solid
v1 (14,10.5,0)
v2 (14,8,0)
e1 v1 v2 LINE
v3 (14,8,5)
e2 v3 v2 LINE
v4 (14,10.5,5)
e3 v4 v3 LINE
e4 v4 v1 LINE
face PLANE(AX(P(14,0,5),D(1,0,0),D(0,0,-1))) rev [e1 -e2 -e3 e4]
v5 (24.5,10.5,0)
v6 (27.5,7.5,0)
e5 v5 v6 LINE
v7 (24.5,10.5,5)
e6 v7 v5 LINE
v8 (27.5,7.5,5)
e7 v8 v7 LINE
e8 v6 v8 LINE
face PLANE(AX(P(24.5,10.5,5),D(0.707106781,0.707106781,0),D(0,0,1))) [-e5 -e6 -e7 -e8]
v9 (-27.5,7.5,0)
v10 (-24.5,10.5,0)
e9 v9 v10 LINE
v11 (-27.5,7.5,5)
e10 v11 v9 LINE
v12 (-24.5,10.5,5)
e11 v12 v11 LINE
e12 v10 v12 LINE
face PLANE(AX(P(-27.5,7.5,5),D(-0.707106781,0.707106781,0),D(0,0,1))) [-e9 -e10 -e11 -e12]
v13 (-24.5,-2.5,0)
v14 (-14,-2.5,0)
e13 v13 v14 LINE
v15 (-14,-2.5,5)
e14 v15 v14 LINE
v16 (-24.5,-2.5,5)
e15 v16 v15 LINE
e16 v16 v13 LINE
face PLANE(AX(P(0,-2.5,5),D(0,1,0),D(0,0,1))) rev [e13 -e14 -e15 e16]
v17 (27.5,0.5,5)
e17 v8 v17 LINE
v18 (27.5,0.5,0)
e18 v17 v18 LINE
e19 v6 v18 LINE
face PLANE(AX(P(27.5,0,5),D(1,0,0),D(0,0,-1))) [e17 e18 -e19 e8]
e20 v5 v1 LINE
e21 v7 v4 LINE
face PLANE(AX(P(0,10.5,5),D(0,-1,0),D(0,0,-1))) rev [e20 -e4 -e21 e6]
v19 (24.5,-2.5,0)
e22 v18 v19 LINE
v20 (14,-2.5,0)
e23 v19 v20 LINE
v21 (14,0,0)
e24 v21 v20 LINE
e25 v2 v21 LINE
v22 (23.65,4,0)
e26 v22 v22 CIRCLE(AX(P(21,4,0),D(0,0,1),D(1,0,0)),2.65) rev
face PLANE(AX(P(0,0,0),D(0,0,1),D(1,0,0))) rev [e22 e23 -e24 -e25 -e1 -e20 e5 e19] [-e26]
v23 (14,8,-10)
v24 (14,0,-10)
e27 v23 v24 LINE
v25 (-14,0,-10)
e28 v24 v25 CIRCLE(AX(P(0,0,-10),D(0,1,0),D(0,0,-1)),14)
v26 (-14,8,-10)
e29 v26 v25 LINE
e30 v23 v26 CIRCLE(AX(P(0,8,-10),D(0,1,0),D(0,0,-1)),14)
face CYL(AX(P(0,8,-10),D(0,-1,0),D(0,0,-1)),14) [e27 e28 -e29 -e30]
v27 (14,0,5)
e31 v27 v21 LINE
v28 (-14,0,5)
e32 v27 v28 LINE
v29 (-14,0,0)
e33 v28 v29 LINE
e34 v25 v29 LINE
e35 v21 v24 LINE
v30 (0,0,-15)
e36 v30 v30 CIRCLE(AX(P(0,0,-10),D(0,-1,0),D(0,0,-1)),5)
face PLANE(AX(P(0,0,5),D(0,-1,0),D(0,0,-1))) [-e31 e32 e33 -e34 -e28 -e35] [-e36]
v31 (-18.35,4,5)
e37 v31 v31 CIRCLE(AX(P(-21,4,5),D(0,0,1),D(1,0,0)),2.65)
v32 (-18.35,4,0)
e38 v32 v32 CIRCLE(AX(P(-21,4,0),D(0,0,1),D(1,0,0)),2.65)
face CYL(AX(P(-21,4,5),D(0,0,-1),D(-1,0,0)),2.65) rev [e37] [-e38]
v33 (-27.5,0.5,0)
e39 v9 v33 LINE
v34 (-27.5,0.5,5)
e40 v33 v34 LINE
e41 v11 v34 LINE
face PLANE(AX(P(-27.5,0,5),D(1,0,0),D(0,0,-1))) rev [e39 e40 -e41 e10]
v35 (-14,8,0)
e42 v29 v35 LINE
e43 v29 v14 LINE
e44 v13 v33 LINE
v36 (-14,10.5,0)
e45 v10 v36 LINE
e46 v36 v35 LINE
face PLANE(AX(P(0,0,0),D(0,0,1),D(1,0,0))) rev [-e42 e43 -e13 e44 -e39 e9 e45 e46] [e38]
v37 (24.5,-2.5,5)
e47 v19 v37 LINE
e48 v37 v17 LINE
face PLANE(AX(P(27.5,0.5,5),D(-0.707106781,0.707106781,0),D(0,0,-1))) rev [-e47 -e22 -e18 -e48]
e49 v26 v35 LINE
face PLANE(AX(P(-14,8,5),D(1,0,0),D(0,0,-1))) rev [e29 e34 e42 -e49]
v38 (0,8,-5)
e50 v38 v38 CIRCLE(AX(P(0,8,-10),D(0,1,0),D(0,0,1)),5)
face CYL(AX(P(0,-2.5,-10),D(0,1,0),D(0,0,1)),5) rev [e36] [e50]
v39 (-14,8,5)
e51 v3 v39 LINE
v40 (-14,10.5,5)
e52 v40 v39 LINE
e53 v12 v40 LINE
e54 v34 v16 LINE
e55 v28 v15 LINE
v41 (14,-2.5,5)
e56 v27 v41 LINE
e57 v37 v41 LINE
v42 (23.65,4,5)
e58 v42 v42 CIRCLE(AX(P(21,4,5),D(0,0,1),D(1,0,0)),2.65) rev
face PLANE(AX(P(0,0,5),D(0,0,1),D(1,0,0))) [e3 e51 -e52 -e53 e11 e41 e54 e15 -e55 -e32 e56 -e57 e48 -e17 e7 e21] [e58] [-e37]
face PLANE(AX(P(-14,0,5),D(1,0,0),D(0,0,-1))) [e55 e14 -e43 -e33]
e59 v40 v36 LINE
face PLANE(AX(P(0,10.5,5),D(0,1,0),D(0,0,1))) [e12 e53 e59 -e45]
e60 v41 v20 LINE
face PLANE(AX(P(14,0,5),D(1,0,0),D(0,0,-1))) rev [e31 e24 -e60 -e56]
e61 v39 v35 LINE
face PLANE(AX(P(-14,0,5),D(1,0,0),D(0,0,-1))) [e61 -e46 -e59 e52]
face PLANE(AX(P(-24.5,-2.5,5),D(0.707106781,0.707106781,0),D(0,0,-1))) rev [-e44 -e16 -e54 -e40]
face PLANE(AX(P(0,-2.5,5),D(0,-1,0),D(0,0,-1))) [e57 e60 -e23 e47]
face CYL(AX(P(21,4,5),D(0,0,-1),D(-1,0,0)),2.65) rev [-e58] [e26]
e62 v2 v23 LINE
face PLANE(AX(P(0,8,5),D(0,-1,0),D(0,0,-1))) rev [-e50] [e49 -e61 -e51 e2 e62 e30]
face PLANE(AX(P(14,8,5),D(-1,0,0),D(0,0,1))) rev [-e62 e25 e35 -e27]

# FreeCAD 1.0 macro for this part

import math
import FreeCAD as App
import Part
import Sketcher
from FreeCAD import Vector


def edges_at(feature, points):
    """Names of the edges that pass closest to the given points."""
    edges = feature.Shape.Edges
    near = lambda p: min(range(len(edges)), key=lambda i: edges[i].distToShape(Part.Vertex(*p))[0])
    return sorted({f"Edge{near(p) + 1}" for p in points})


def add_polygon(sketch, points):
    """Adds a closed chain of lines whose ends are joined by coincident constraints."""
    first, n = sketch.GeometryCount, len(points)
    for a, b in zip(points, points[1:] + points[:1]):
        sketch.addGeometry(Part.LineSegment(App.Vector(*a, 0), App.Vector(*b, 0)), False)
    for i in range(n):
        sketch.addConstraint(Sketcher.Constraint("Coincident", first + i, 2, first + (i + 1) % n, 1))

doc = App.newDocument("Part")
params = doc.addObject("Spreadsheet::Sheet", "Params")
for row, (alias, value) in enumerate([
    ("sketch1_diameter", "5.3 mm"),
    ("sketch1_width", "28 mm"),
    ("sketch1_height", "13 mm"),
    ("sketch1_width2", "13.5 mm"),
    ("sketch1_height2", "2.5 mm"),
    ("pad1_length", "5 mm"),
    ("chamfer_size", "3 mm"),
    ("sketch2_radius", "14 mm"),
    ("sketch2_height", "15 mm"),
    ("pad2_length", "8 mm"),
    ("sketch3_diameter", "10 mm"),
], start=1):
    params.set(f"A{row}", alias)
    params.set(f"B{row}", "=" + value)
    params.setAlias(f"B{row}", alias)

body = doc.addObject("PartDesign::Body", "Body")

# Sketch on XY plane
sketch1 = doc.addObject("Sketcher::SketchObject", "Sketch")
body.addObject(sketch1)
sketch1.AttachmentSupport = (doc.XY_Plane, [""])
sketch1.MapMode = "FlatFace"
add_polygon(sketch1, [(-14, -2.5), (-14, 0), (14, 0), (14, -2.5), (27.5, -2.5), (27.5, 10.5), (14, 10.5), (14, 8), (-14, 8), (-14, 10.5), (-27.5, 10.5), (-27.5, -2.5)])  # lines 0-11
sketch1.addGeometry(Part.Circle(Vector(-21, 4, 0), Vector(0, 0, 1), 2.65), False)  # 12
sketch1.addGeometry(Part.Circle(Vector(21, 4, 0), Vector(0, 0, 1), 2.65), False)  # 13
sketch1.addConstraint([
    Sketcher.Constraint("Vertical", 0),
    Sketcher.Constraint("Horizontal", 1),
    Sketcher.Constraint("Vertical", 2),
    Sketcher.Constraint("Horizontal", 3),
    Sketcher.Constraint("Vertical", 4),
    Sketcher.Constraint("Horizontal", 5),
    Sketcher.Constraint("Vertical", 6),
    Sketcher.Constraint("Horizontal", 7),
    Sketcher.Constraint("Vertical", 8),
    Sketcher.Constraint("Horizontal", 9),
    Sketcher.Constraint("Vertical", 10),
    Sketcher.Constraint("Horizontal", 11),
    Sketcher.Constraint("Equal", 12, 13),
    Sketcher.Constraint("Symmetric", 0, 2, 1, 2, -1, 1),
    Sketcher.Constraint("Symmetric", 12, 3, 13, 3, -2),
    Sketcher.Constraint("Symmetric", 5, 2, 8, 2, -2),
    Sketcher.Constraint("Symmetric", 3, 2, 10, 2, -2),
    Sketcher.Constraint("Vertical", 2, 2, 5, 2),
    Sketcher.Constraint("Equal", 2, 6),
    Sketcher.Constraint("Diameter", 12, 5.3),
    Sketcher.Constraint("DistanceX", 1, 1, 1, 2, 28.0),
    Sketcher.Constraint("DistanceY", 4, 1, 4, 2, 13.0),
    Sketcher.Constraint("DistanceX", 3, 1, 3, 2, 13.5),
    Sketcher.Constraint("DistanceY", 0, 1, 0, 2, 2.5),
    Sketcher.Constraint("DistanceX", 12, 3, -1, 1, 21.0),
    Sketcher.Constraint("DistanceY", -1, 1, 12, 3, 4.0),
])
sketch1.setExpression("Constraints[31]", "Params.sketch1_diameter")
sketch1.setExpression("Constraints[32]", "Params.sketch1_width")
sketch1.setExpression("Constraints[33]", "Params.sketch1_height")
sketch1.setExpression("Constraints[34]", "Params.sketch1_width2")
sketch1.setExpression("Constraints[35]", "Params.sketch1_height2")
pad1 = doc.addObject("PartDesign::Pad", "Pad")
body.addObject(pad1)
pad1.Profile = sketch1
pad1.setExpression("Length", "Params.pad1_length")
doc.recompute()

chamfer = doc.addObject("PartDesign::Chamfer", "Chamfer")
body.addObject(chamfer)
chamfer.Base = (pad1, edges_at(pad1, [
    (27.5, 10.5, 2.5),
    (27.5, -2.5, 2.5),
    (-27.5, -2.5, 2.5),
    (-27.5, 10.5, 2.5),
]))
chamfer.setExpression("Size", "Params.chamfer_size")

# Sketch on XZ plane
sketch2 = doc.addObject("Sketcher::SketchObject", "Sketch001")
body.addObject(sketch2)
sketch2.AttachmentSupport = (doc.XZ_Plane, [""])
sketch2.MapMode = "FlatFace"
sketch2.AttachmentOffset = App.Placement(Vector(0, 0, -4), App.Rotation())
sketch2.addGeometry([
    Part.LineSegment(Vector(-14, -10, 0), Vector(-14, 5, 0)),
    Part.LineSegment(Vector(-14, 5, 0), Vector(14, 5, 0)),
    Part.LineSegment(Vector(14, 5, 0), Vector(14, -10, 0)),
    Part.ArcOfCircle(Part.Circle(Vector(0, -10, 0), Vector(0, 0, 1), 14), math.radians(180), math.radians(360)),
], False)
sketch2.addConstraint([
    Sketcher.Constraint("Coincident", 0, 2, 1, 1),
    Sketcher.Constraint("Coincident", 1, 2, 2, 1),
    Sketcher.Constraint("Tangent", 2, 2, 3, 2),
    Sketcher.Constraint("Tangent", 3, 1, 0, 1),
    Sketcher.Constraint("Vertical", 0),
    Sketcher.Constraint("Horizontal", 1),
    Sketcher.Constraint("Vertical", 2),
    Sketcher.Constraint("PointOnObject", 3, 3, -2),
    Sketcher.Constraint("Radius", 3, 14.0),
    Sketcher.Constraint("DistanceY", 0, 1, 0, 2, 15.0),
    Sketcher.Constraint("DistanceY", 3, 3, -1, 1, 10.0),
])
sketch2.setExpression("Constraints[8]", "Params.sketch2_radius")
sketch2.setExpression("Constraints[9]", "Params.sketch2_height")
pad2 = doc.addObject("PartDesign::Pad", "Pad001")
body.addObject(pad2)
pad2.Profile = sketch2
pad2.setExpression("Length", "Params.pad2_length")
pad2.Midplane = True

# Sketch on XZ plane
sketch3 = doc.addObject("Sketcher::SketchObject", "Sketch002")
body.addObject(sketch3)
sketch3.AttachmentSupport = (doc.XZ_Plane, [""])
sketch3.MapMode = "FlatFace"
sketch3.AttachmentOffset = App.Placement(Vector(0, 0, -8), App.Rotation())
sketch3.addGeometry(Part.Circle(Vector(0, -10, 0), Vector(0, 0, 1), 5), False)
sketch3.addConstraint([
    Sketcher.Constraint("PointOnObject", 0, 3, -2),
    Sketcher.Constraint("Diameter", 0, 10.0),
    Sketcher.Constraint("DistanceY", 0, 3, -1, 1, 10.0),
])
sketch3.setExpression("Constraints[1]", "Params.sketch3_diameter")
pocket1 = doc.addObject("PartDesign::Pocket", "Pocket")
body.addObject(pocket1)
pocket1.Profile = sketch3
pocket1.Type = "ThroughAll"
pocket1.Reversed = True

doc.recompute()
